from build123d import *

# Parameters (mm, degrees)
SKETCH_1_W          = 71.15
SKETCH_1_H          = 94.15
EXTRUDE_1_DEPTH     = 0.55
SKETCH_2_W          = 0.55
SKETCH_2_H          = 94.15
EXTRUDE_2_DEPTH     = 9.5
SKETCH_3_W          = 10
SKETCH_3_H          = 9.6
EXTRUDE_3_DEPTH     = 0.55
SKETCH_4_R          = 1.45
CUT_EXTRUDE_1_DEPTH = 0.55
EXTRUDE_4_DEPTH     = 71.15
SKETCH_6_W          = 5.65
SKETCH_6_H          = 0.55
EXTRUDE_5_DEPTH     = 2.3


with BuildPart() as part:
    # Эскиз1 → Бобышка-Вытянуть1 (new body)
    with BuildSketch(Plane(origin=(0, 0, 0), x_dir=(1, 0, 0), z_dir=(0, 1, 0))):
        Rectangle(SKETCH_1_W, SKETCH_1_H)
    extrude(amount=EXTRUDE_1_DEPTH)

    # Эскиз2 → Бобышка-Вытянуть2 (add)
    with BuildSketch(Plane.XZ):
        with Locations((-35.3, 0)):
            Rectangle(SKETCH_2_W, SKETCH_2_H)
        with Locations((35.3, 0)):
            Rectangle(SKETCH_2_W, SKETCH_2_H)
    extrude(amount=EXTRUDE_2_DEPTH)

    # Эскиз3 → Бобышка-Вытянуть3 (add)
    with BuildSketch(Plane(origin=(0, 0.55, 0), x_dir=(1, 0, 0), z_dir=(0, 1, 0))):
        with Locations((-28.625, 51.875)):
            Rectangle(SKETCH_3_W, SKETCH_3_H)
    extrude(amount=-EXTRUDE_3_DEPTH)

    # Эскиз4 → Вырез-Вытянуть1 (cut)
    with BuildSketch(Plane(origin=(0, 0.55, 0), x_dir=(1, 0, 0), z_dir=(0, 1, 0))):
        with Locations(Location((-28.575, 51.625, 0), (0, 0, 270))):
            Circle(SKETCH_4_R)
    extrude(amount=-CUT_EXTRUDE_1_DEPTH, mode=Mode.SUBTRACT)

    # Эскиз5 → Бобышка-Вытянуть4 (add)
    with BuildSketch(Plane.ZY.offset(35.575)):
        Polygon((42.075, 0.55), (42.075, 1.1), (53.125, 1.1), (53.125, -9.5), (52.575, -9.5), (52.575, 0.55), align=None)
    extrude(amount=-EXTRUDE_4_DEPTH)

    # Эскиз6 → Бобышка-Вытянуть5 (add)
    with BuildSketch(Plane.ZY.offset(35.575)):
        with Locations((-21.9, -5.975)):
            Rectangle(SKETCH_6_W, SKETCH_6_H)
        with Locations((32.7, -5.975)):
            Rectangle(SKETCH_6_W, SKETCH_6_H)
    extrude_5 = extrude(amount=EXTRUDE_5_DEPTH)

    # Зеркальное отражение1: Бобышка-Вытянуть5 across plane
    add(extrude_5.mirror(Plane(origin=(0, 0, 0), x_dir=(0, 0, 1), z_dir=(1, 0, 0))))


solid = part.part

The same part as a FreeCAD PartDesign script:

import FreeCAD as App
import Part
import Sketcher


def add_polygon(sketch, points):
    """Adds a closed chain of lines whose ends are joined by coincident constraints."""
    first, n = sketch.GeometryCount, len(points)
    for a, b in zip(points, points[1:] + points[:1]):
        sketch.addGeometry(Part.LineSegment(App.Vector(*a, 0), App.Vector(*b, 0)), False)
    for i in range(n):
        sketch.addConstraint(Sketcher.Constraint("Coincident", first + i, 2, first + (i + 1) % n, 1))

doc = App.newDocument("Part")
body = doc.addObject("PartDesign::Body", "Body")

# Sketch on XZ plane
sketch1 = doc.addObject("Sketcher::SketchObject", "Sketch")
body.addObject(sketch1)
sketch1.AttachmentSupport = (doc.XZ_Plane, [""])
sketch1.MapMode = "FlatFace"
add_polygon(sketch1, [(-36, -47), (-36, 47), (36, 47), (36, -47)])  # lines 0-3
sketch1.addConstraint([
    Sketcher.Constraint("Vertical", 0),
    Sketcher.Constraint("Horizontal", 1),
    Sketcher.Constraint("Vertical", 2),
    Sketcher.Constraint("Horizontal", 3),
    Sketcher.Constraint("Symmetric", 0, 2, 2, 2, -1, 1),
    Sketcher.Constraint("DistanceX", 1, 1, 1, 2, 71.15),
    Sketcher.Constraint("DistanceY", 0, 1, 0, 2, 94.15),
])
pad1 = doc.addObject("PartDesign::Pad", "Pad")
body.addObject(pad1)
pad1.Profile = sketch1
pad1.Length = 0.55
pad1.Reversed = True

# Sketch on XZ plane
sketch2 = doc.addObject("Sketcher::SketchObject", "Sketch001")
body.addObject(sketch2)
sketch2.AttachmentSupport = (doc.XZ_Plane, [""])
sketch2.MapMode = "FlatFace"
add_polygon(sketch2, [(-35.6, 47.1), (-35.6, -47.1), (-35, -47.1), (-35, 47.1)])  # lines 0-3
add_polygon(sketch2, [(35, 47.1), (35, -47.1), (35.6, -47.1), (35.6, 47.1)])  # lines 4-7
sketch2.addConstraint([
    Sketcher.Constraint("Vertical", 0),
    Sketcher.Constraint("Horizontal", 1),
    Sketcher.Constraint("Vertical", 2),
    Sketcher.Constraint("Horizontal", 3),
    Sketcher.Constraint("Vertical", 4),
    Sketcher.Constraint("Horizontal", 5),
    Sketcher.Constraint("Vertical", 6),
    Sketcher.Constraint("Horizontal", 7),
    Sketcher.Constraint("Symmetric", 2, 2, 4, 2, -1, 1),
    Sketcher.Constraint("Symmetric", 0, 2, 6, 2, -1, 1),
    Sketcher.Constraint("Horizontal", 1, 2, 4, 2),
    Sketcher.Constraint("DistanceX", 1, 1, 1, 2, 0.55),
    Sketcher.Constraint("DistanceY", 0, 2, 0, 1, 94.15),
    Sketcher.Constraint("DistanceX", 0, 2, 4, 2, 70.6),
])
pad2 = doc.addObject("PartDesign::Pad", "Pad001")
body.addObject(pad2)
pad2.Profile = sketch2
pad2.Length = 9.5

# Sketch on XZ plane
sketch3 = doc.addObject("Sketcher::SketchObject", "Sketch002")
body.addObject(sketch3)
sketch3.AttachmentSupport = (doc.XZ_Plane, [""])
sketch3.MapMode = "FlatFace"
sketch3.AttachmentOffset = App.Placement(App.Vector(0, 0, -0.55), App.Rotation())
add_polygon(sketch3, [(-34, -57), (-34, -47), (-24, -47), (-24, -57)])  # lines 0-3
sketch3.addConstraint([
    Sketcher.Constraint("Vertical", 0),
    Sketcher.Constraint("Horizontal", 1),
    Sketcher.Constraint("Vertical", 2),
    Sketcher.Constraint("Horizontal", 3),
    Sketcher.Constraint("DistanceX", 1, 1, 1, 2, 10.0),
    Sketcher.Constraint("DistanceY", 0, 1, 0, 2, 9.6),
    Sketcher.Constraint("DistanceX", 0, 2, -1, 1, 33.625),
    Sketcher.Constraint("DistanceY", 0, 2, -1, 1, 47.075),
])
pad3 = doc.addObject("PartDesign::Pad", "Pad002")
body.addObject(pad3)
pad3.Profile = sketch3
pad3.Length = 0.55

# Sketch on XZ plane
sketch4 = doc.addObject("Sketcher::SketchObject", "Sketch003")
body.addObject(sketch4)
sketch4.AttachmentSupport = (doc.XZ_Plane, [""])
sketch4.MapMode = "FlatFace"
sketch4.AttachmentOffset = App.Placement(App.Vector(0, 0, -0.55), App.Rotation())
sketch4.addGeometry(Part.Circle(App.Vector(-28.6, -51.6, 0), App.Vector(0, 0, 1), 1.4), False)
sketch4.addConstraint([
    Sketcher.Constraint("Diameter", 0, 2.9),
    Sketcher.Constraint("DistanceX", 0, 3, -1, 1, 28.575),
    Sketcher.Constraint("DistanceY", 0, 3, -1, 1, 51.625),
])
pocket1 = doc.addObject("PartDesign::Pocket", "Pocket")
body.addObject(pocket1)
pocket1.Profile = sketch4
pocket1.Length = 0.55
pocket1.Reversed = True

# Sketch on YZ plane
sketch5 = doc.addObject("Sketcher::SketchObject", "Sketch004")
body.addObject(sketch5)
sketch5.AttachmentSupport = (doc.YZ_Plane, [""])
sketch5.MapMode = "FlatFace"
sketch5.AttachmentOffset = App.Placement(App.Vector(0, 0, -35.575), App.Rotation())
add_polygon(sketch5, [(1.1, 42.1), (0.6, 42.1), (0.6, 52.6), (-9.5, 52.6), (-9.5, 53.1), (1.1, 53.1)])  # lines 0-5
sketch5.addConstraint([
    Sketcher.Constraint("Horizontal", 0),
    Sketcher.Constraint("Vertical", 1),
    Sketcher.Constraint("Horizontal", 2),
    Sketcher.Constraint("Vertical", 3),
    Sketcher.Constraint("Horizontal", 4),
    Sketcher.Constraint("Vertical", 5),
    Sketcher.Constraint("Equal", 0, 3),
    Sketcher.Constraint("DistanceX", 4, 1, 4, 2, 10.6),
    Sketcher.Constraint("DistanceY", 1, 1, 1, 2, 10.5),
    Sketcher.Constraint("DistanceX", 0, 2, 0, 1, 0.55),
    Sketcher.Constraint("DistanceX", 2, 2, -1, 1, 9.5),
    Sketcher.Constraint("DistanceY", -1, 1, 0, 2, 42.075),
])
pad4 = doc.addObject("PartDesign::Pad", "Pad003")
body.addObject(pad4)
pad4.Profile = sketch5
pad4.Length = 71.15

# Sketch on YZ plane
sketch6 = doc.addObject("Sketcher::SketchObject", "Sketch005")
body.addObject(sketch6)
sketch6.AttachmentSupport = (doc.YZ_Plane, [""])
sketch6.MapMode = "FlatFace"
sketch6.AttachmentOffset = App.Placement(App.Vector(0, 0, -35.575), App.Rotation())
add_polygon(sketch6, [(-5.7, -24.7), (-6.2, -24.7), (-6.2, -19.1), (-5.7, -19.1)])  # lines 0-3
add_polygon(sketch6, [(-5.7, 29.9), (-6.2, 29.9), (-6.2, 35.5), (-5.7, 35.5)])  # lines 4-7
sketch6.addConstraint([
    Sketcher.Constraint("Horizontal", 0),
    Sketcher.Constraint("Vertical", 1),
    Sketcher.Constraint("Horizontal", 2),
    Sketcher.Constraint("Vertical", 3),
    Sketcher.Constraint("Horizontal", 4),
    Sketcher.Constraint("Vertical", 5),
    Sketcher.Constraint("Horizontal", 6),
    Sketcher.Constraint("Vertical", 7),
    Sketcher.Constraint("Vertical", 1, 2, 4, 2),
    Sketcher.Constraint("Vertical", 3, 2, 6, 2),
    Sketcher.Constraint("Equal", 3, 5),
    Sketcher.Constraint("DistanceX", 0, 2, 0, 1, 0.55),
    Sketcher.Constraint("DistanceY", 1, 1, 1, 2, 5.65),
    Sketcher.Constraint("DistanceX", 2, 2, -1, 1, 5.7),
    Sketcher.Constraint("DistanceY", 0, 2, 4, 2, 54.6),
    Sketcher.Constraint("DistanceY", 0, 2, -1, 1, 24.725),
])
pad5 = doc.addObject("PartDesign::Pad", "Pad004")
body.addObject(pad5)
pad5.Profile = sketch6
pad5.Length = 2.3
pad5.Reversed = True
doc.recompute()

mirrored = doc.addObject("PartDesign::Mirrored", "Mirrored")
body.addObject(mirrored)
mirrored.Originals = [pad5]
mirrored.MirrorPlane = (doc.YZ_Plane, [""])
body.Tip = mirrored

doc.recompute()
